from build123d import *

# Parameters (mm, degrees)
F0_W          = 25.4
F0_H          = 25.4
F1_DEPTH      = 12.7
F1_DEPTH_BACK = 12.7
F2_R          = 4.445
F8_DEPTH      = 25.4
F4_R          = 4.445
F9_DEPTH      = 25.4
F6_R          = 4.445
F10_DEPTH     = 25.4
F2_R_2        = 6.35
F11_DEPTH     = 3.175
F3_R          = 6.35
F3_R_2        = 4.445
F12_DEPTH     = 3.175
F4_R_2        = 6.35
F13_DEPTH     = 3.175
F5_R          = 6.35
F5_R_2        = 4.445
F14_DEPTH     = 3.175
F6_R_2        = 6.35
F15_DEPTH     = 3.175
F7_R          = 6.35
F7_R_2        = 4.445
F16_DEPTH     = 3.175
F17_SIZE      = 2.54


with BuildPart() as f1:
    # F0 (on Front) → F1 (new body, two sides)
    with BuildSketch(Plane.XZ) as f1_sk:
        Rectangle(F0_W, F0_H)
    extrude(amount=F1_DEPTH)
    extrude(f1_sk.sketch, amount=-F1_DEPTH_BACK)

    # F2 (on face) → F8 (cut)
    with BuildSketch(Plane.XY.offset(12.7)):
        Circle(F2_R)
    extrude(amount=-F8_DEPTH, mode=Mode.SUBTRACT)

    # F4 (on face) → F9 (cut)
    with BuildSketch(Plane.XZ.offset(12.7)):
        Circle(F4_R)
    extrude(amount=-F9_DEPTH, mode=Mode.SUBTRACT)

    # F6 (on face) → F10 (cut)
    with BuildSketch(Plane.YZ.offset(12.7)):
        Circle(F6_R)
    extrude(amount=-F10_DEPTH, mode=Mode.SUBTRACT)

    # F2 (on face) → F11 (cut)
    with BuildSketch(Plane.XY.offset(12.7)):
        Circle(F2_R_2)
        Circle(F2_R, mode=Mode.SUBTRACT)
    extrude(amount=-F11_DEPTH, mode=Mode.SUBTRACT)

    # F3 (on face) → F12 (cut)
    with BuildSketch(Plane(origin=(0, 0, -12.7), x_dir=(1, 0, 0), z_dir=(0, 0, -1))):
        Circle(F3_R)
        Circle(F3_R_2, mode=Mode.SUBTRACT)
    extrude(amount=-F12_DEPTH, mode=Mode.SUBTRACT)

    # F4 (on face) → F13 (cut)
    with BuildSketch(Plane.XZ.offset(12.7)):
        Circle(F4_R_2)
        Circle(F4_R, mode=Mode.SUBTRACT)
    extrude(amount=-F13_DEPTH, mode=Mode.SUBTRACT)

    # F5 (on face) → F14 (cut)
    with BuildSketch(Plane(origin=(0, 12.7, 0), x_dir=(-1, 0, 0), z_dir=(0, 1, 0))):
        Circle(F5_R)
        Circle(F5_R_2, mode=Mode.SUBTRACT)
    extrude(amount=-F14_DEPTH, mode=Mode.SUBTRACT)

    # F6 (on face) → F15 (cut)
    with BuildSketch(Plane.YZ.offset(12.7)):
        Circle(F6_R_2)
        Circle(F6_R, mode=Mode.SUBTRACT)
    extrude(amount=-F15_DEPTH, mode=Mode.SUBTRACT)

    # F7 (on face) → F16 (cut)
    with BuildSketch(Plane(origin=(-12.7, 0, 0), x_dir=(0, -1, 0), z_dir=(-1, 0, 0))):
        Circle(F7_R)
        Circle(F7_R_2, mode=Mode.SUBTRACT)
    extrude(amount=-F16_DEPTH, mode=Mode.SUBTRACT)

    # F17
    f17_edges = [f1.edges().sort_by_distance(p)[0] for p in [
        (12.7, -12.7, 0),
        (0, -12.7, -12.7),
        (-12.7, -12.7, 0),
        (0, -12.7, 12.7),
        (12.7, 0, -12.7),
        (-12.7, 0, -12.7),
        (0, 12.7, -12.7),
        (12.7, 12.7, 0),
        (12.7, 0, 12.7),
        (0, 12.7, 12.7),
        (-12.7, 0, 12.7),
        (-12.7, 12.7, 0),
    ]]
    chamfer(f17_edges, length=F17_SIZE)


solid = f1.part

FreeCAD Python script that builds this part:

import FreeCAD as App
import Part
import Sketcher
Q = App.Units.Quantity


def edges_at(feature, points):
    """Names of the edges that pass closest to the given points."""
    edges = feature.Shape.Edges
    near = lambda p: min(range(len(edges)), key=lambda i: edges[i].distToShape(Part.Vertex(*p))[0])
    return sorted({f"Edge{near(p) + 1}" for p in points})

doc = App.newDocument("Part")
body = doc.addObject("PartDesign::Body", "Body")

# Sketch on XZ plane
sketch1 = doc.addObject("Sketcher::SketchObject", "Sketch")
body.addObject(sketch1)
sketch1.AttachmentSupport = (doc.XZ_Plane, [""])
sketch1.MapMode = "FlatFace"
sketch1.addGeometry([
    Part.LineSegment(App.Vector(-12.7, 12.7, 0), App.Vector(-12.7, -12.7, 0)),
    Part.LineSegment(App.Vector(-12.7, -12.7, 0), App.Vector(12.7, -12.7, 0)),
    Part.LineSegment(App.Vector(12.7, -12.7, 0), App.Vector(12.7, 12.7, 0)),
    Part.LineSegment(App.Vector(12.7, 12.7, 0), App.Vector(-12.7, 12.7, 0)),
], False)
sketch1.addConstraint([
    Sketcher.Constraint("Coincident", 0, 2, 1, 1),
    Sketcher.Constraint("Coincident", 1, 2, 2, 1),
    Sketcher.Constraint("Coincident", 2, 2, 3, 1),
    Sketcher.Constraint("Coincident", 3, 2, 0, 1),
    Sketcher.Constraint("Vertical", 0),
    Sketcher.Constraint("Horizontal", 1),
    Sketcher.Constraint("Vertical", 2),
    Sketcher.Constraint("Horizontal", 3),
    Sketcher.Constraint("Symmetric", 0, 2, 2, 2, -1, 1),
    Sketcher.Constraint("Equal", 3, 0),
    Sketcher.Constraint("DistanceX", 1, 1, 1, 2, Q("1 in")),
])
pad1 = doc.addObject("PartDesign::Pad", "Pad")
body.addObject(pad1)
pad1.Profile = sketch1
pad1.Type = "TwoLengths"
pad1.Length = Q("0.5 in")
pad1.Length2 = Q("0.5 in")

# Sketch on XY plane
sketch2 = doc.addObject("Sketcher::SketchObject", "Sketch001")
body.addObject(sketch2)
sketch2.AttachmentSupport = (doc.XY_Plane, [""])
sketch2.MapMode = "FlatFace"
sketch2.AttachmentOffset = App.Placement(App.Vector(0, 0, 0.5 * 25.4), App.Rotation())
sketch2.addGeometry(Part.Circle(App.Vector(0, 0, 0), App.Vector(0, 0, 1), 4.445), False)
sketch2.addConstraint([
    Sketcher.Constraint("Coincident", 0, 3, -1, 1),
    Sketcher.Constraint("Diameter", 0, Q("0.35 in")),
])
pocket1 = doc.addObject("PartDesign::Pocket", "Pocket")
body.addObject(pocket1)
pocket1.Profile = sketch2
pocket1.Length = Q("1 in")

# Sketch on XZ plane
sketch3 = doc.addObject("Sketcher::SketchObject", "Sketch002")
body.addObject(sketch3)
sketch3.AttachmentSupport = (doc.XZ_Plane, [""])
sketch3.MapMode = "FlatFace"
sketch3.AttachmentOffset = App.Placement(App.Vector(0, 0, 0.5 * 25.4), App.Rotation())
sketch3.addGeometry(Part.Circle(App.Vector(0, 0, 0), App.Vector(0, 0, 1), 4.445), False)
sketch3.addConstraint([
    Sketcher.Constraint("Coincident", 0, 3, -1, 1),
    Sketcher.Constraint("Diameter", 0, Q("0.35 in")),
])
pocket2 = doc.addObject("PartDesign::Pocket", "Pocket001")
body.addObject(pocket2)
pocket2.Profile = sketch3
pocket2.Length = Q("1 in")

# Sketch on YZ plane
sketch4 = doc.addObject("Sketcher::SketchObject", "Sketch003")
body.addObject(sketch4)
sketch4.AttachmentSupport = (doc.YZ_Plane, [""])
sketch4.MapMode = "FlatFace"
sketch4.AttachmentOffset = App.Placement(App.Vector(0, 0, 0.5 * 25.4), App.Rotation())
sketch4.addGeometry(Part.Circle(App.Vector(0, 0, 0), App.Vector(0, 0, 1), 4.445), False)
sketch4.addConstraint([
    Sketcher.Constraint("Coincident", 0, 3, -1, 1),
    Sketcher.Constraint("Diameter", 0, Q("0.35 in")),
])
pocket3 = doc.addObject("PartDesign::Pocket", "Pocket002")
body.addObject(pocket3)
pocket3.Profile = sketch4
pocket3.Length = Q("1 in")

# Sketch on XY plane
sketch5 = doc.addObject("Sketcher::SketchObject", "Sketch004")
body.addObject(sketch5)
sketch5.AttachmentSupport = (doc.XY_Plane, [""])
sketch5.MapMode = "FlatFace"
sketch5.AttachmentOffset = App.Placement(App.Vector(0, 0, 0.5 * 25.4), App.Rotation())
sketch5.addGeometry([
    Part.Circle(App.Vector(0, 0, 0), App.Vector(0, 0, 1), 6.35),
    Part.Circle(App.Vector(0, 0, 0), App.Vector(0, 0, 1), 4.445),
], False)
sketch5.addConstraint([
    Sketcher.Constraint("Coincident", 0, 3, -1, 1),
    Sketcher.Constraint("Coincident", 1, 3, -1, 1),
    Sketcher.Constraint("Diameter", 0, Q("0.5 in")),
    Sketcher.Constraint("Diameter", 1, Q("0.35 in")),
])
pocket4 = doc.addObject("PartDesign::Pocket", "Pocket003")
body.addObject(pocket4)
pocket4.Profile = sketch5
pocket4.Length = Q("0.125 in")

# Sketch on XY plane
sketch6 = doc.addObject("Sketcher::SketchObject", "Sketch005")
body.addObject(sketch6)
sketch6.AttachmentSupport = (doc.XY_Plane, [""])
sketch6.MapMode = "FlatFace"
sketch6.AttachmentOffset = App.Placement(App.Vector(0, 0, -0.5 * 25.4), App.Rotation())
sketch6.addGeometry([
    Part.Circle(App.Vector(0, 0, 0), App.Vector(0, 0, 1), 6.35),
    Part.Circle(App.Vector(0, 0, 0), App.Vector(0, 0, 1), 4.445),
], False)
sketch6.addConstraint([
    Sketcher.Constraint("Coincident", 0, 3, -1, 1),
    Sketcher.Constraint("Coincident", 1, 3, -1, 1),
    Sketcher.Constraint("Diameter", 0, Q("0.5 in")),
    Sketcher.Constraint("Diameter", 1, Q("0.35 in")),
])
pocket5 = doc.addObject("PartDesign::Pocket", "Pocket004")
body.addObject(pocket5)
pocket5.Profile = sketch6
pocket5.Length = Q("0.125 in")
pocket5.Reversed = True

# Sketch on XZ plane
sketch7 = doc.addObject("Sketcher::SketchObject", "Sketch006")
body.addObject(sketch7)
sketch7.AttachmentSupport = (doc.XZ_Plane, [""])
sketch7.MapMode = "FlatFace"
sketch7.AttachmentOffset = App.Placement(App.Vector(0, 0, 0.5 * 25.4), App.Rotation())
sketch7.addGeometry([
    Part.Circle(App.Vector(0, 0, 0), App.Vector(0, 0, 1), 6.35),
    Part.Circle(App.Vector(0, 0, 0), App.Vector(0, 0, 1), 4.445),
], False)
sketch7.addConstraint([
    Sketcher.Constraint("Coincident", 0, 3, -1, 1),
    Sketcher.Constraint("Coincident", 1, 3, -1, 1),
    Sketcher.Constraint("Diameter", 0, Q("0.5 in")),
    Sketcher.Constraint("Diameter", 1, Q("0.35 in")),
])
pocket6 = doc.addObject("PartDesign::Pocket", "Pocket005")
body.addObject(pocket6)
pocket6.Profile = sketch7
pocket6.Length = Q("0.125 in")

# Sketch on XZ plane
sketch8 = doc.addObject("Sketcher::SketchObject", "Sketch007")
body.addObject(sketch8)
sketch8.AttachmentSupport = (doc.XZ_Plane, [""])
sketch8.MapMode = "FlatFace"
sketch8.AttachmentOffset = App.Placement(App.Vector(0, 0, -0.5 * 25.4), App.Rotation())
sketch8.addGeometry([
    Part.Circle(App.Vector(0, 0, 0), App.Vector(0, 0, 1), 6.35),
    Part.Circle(App.Vector(0, 0, 0), App.Vector(0, 0, 1), 4.445),
], False)
sketch8.addConstraint([
    Sketcher.Constraint("Coincident", 0, 3, -1, 1),
    Sketcher.Constraint("Coincident", 1, 3, -1, 1),
    Sketcher.Constraint("Diameter", 0, Q("0.5 in")),
    Sketcher.Constraint("Diameter", 1, Q("0.35 in")),
])
pocket7 = doc.addObject("PartDesign::Pocket", "Pocket006")
body.addObject(pocket7)
pocket7.Profile = sketch8
pocket7.Length = Q("0.125 in")
pocket7.Reversed = True

# Sketch on YZ plane
sketch9 = doc.addObject("Sketcher::SketchObject", "Sketch008")
body.addObject(sketch9)
sketch9.AttachmentSupport = (doc.YZ_Plane, [""])
sketch9.MapMode = "FlatFace"
sketch9.AttachmentOffset = App.Placement(App.Vector(0, 0, 0.5 * 25.4), App.Rotation())
sketch9.addGeometry([
    Part.Circle(App.Vector(0, 0, 0), App.Vector(0, 0, 1), 6.35),
    Part.Circle(App.Vector(0, 0, 0), App.Vector(0, 0, 1), 4.445),
], False)
sketch9.addConstraint([
    Sketcher.Constraint("Coincident", 0, 3, -1, 1),
    Sketcher.Constraint("Coincident", 1, 3, -1, 1),
    Sketcher.Constraint("Diameter", 0, Q("0.5 in")),
    Sketcher.Constraint("Diameter", 1, Q("0.35 in")),
])
pocket8 = doc.addObject("PartDesign::Pocket", "Pocket007")
body.addObject(pocket8)
pocket8.Profile = sketch9
pocket8.Length = Q("0.125 in")

# Sketch on YZ plane
sketch10 = doc.addObject("Sketcher::SketchObject", "Sketch009")
body.addObject(sketch10)
sketch10.AttachmentSupport = (doc.YZ_Plane, [""])
sketch10.MapMode = "FlatFace"
sketch10.AttachmentOffset = App.Placement(App.Vector(0, 0, -0.5 * 25.4), App.Rotation())
sketch10.addGeometry([
    Part.Circle(App.Vector(0, 0, 0), App.Vector(0, 0, 1), 6.35),
    Part.Circle(App.Vector(0, 0, 0), App.Vector(0, 0, 1), 4.445),
], False)
sketch10.addConstraint([
    Sketcher.Constraint("Coincident", 0, 3, -1, 1),
    Sketcher.Constraint("Coincident", 1, 3, -1, 1),
    Sketcher.Constraint("Diameter", 0, Q("0.5 in")),
    Sketcher.Constraint("Diameter", 1, Q("0.35 in")),
])
pocket9 = doc.addObject("PartDesign::Pocket", "Pocket008")
body.addObject(pocket9)
pocket9.Profile = sketch10
pocket9.Length = Q("0.125 in")
pocket9.Reversed = True
doc.recompute()

chamfer = doc.addObject("PartDesign::Chamfer", "Chamfer")
body.addObject(chamfer)
chamfer.Base = (pocket9, edges_at(pocket9, [
    (12.7, -12.7, 0),
    (0, -12.7, -12.7),
    (-12.7, -12.7, 0),
    (0, -12.7, 12.7),
    (12.7, 0, -12.7),
    (-12.7, 0, -12.7),
    (0, 12.7, -12.7),
    (12.7, 12.7, 0),
    (12.7, 0, 12.7),
    (0, 12.7, 12.7),
    (-12.7, 0, 12.7),
    (-12.7, 12.7, 0),
]))
chamfer.Size = Q("0.1 in")

doc.recompute()
